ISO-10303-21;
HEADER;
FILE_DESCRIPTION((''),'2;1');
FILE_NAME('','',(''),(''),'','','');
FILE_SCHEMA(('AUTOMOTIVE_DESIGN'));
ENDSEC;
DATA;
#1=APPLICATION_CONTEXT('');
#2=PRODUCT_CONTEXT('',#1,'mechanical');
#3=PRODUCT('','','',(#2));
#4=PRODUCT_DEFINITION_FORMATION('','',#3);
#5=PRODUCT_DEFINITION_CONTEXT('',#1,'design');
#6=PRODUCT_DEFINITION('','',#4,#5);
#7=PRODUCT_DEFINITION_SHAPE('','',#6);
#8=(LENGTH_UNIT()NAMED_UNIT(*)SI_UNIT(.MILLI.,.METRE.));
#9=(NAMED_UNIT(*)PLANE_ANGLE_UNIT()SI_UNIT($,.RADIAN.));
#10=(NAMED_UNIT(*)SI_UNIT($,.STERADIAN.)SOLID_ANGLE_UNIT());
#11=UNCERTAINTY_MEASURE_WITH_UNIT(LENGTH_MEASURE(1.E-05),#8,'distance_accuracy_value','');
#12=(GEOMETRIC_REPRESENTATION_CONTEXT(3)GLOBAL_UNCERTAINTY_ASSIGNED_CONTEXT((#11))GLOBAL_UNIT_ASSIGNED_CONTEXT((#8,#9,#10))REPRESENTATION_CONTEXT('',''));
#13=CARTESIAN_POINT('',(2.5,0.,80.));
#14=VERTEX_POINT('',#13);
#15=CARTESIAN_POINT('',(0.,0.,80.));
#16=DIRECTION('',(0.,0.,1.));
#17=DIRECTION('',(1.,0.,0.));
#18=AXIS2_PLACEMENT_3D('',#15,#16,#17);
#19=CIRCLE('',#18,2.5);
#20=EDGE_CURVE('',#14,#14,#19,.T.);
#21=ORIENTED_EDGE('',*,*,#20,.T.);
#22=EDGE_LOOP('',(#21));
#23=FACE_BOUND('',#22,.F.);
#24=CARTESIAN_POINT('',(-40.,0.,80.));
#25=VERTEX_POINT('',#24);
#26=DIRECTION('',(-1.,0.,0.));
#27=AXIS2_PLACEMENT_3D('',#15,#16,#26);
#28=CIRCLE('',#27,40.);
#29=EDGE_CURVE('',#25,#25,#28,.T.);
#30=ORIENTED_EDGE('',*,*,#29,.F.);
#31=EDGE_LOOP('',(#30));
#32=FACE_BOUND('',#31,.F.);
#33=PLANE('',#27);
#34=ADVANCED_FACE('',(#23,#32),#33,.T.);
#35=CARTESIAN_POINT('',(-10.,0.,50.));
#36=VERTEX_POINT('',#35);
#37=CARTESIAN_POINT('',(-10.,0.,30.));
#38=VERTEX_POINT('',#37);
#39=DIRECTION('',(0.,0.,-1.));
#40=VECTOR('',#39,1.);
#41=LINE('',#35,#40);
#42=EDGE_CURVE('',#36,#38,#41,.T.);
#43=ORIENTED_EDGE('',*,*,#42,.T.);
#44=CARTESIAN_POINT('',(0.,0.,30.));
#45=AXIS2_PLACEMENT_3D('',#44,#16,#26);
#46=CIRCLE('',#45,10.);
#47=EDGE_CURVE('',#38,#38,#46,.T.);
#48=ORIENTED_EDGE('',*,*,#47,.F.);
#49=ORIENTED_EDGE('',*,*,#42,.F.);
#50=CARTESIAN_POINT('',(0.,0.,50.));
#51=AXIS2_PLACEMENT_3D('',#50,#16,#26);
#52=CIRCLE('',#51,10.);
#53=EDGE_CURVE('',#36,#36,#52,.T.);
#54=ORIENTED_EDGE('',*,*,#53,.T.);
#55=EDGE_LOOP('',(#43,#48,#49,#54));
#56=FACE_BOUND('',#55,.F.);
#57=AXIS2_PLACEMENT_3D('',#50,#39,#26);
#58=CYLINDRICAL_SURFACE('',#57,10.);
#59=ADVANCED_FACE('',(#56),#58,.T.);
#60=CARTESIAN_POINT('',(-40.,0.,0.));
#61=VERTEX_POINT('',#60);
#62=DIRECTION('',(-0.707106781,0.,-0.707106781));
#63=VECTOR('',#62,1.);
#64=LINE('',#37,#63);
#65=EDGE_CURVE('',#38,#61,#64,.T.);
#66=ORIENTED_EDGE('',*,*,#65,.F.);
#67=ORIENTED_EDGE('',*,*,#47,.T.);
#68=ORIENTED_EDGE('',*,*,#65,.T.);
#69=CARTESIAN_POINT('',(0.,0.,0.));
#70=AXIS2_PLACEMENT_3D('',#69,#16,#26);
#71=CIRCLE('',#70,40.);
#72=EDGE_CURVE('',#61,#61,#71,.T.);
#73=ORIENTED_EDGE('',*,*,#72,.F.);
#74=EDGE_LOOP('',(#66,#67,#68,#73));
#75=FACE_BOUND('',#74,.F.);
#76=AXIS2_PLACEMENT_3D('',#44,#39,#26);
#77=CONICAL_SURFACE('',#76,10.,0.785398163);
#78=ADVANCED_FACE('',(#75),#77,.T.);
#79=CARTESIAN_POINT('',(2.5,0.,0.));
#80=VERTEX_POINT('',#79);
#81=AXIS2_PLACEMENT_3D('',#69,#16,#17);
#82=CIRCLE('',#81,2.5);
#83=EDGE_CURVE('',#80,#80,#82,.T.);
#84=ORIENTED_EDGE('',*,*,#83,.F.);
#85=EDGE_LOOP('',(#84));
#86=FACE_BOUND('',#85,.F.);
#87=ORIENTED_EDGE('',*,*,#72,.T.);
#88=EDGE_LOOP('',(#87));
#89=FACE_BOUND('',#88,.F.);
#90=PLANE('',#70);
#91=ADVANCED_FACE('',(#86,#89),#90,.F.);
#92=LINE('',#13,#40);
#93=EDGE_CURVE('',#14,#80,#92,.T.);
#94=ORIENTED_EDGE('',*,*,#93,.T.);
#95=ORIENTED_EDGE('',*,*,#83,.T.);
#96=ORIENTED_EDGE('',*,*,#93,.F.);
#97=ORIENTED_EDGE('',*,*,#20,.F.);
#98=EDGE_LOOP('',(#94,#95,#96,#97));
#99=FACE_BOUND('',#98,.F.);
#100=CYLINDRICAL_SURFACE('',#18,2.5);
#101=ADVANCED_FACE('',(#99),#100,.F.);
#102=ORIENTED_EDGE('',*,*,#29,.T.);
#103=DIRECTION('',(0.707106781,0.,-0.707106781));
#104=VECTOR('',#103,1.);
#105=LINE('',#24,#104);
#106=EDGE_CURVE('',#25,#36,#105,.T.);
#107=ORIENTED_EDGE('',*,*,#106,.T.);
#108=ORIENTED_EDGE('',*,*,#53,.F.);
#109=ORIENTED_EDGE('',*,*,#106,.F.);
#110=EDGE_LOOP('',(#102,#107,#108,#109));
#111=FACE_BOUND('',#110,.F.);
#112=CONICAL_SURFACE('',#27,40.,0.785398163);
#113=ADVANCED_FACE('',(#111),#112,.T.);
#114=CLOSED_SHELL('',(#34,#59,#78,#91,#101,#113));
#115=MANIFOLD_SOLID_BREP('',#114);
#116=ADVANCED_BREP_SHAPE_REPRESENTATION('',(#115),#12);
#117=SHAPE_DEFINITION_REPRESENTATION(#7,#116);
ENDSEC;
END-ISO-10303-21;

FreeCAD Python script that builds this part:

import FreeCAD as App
import Part
import Sketcher
Q = App.Units.Quantity

doc = App.newDocument("Part")
body = doc.addObject("PartDesign::Body", "Body")

sketch1 = body.newObject("Sketcher::SketchObject", "Sketch")
sketch1.AttachmentSupport = (doc.getObject("XZ_Plane"), [""])
sketch1.MapMode = "FlatFace"
sketch1.addGeometry([
    Part.LineSegment(App.Vector(-40, 0, 0), App.Vector(0, 0, 0)),
    Part.LineSegment(App.Vector(0, 0, 0), App.Vector(0, 80, 0)),
    Part.LineSegment(App.Vector(0, 80, 0), App.Vector(-40, 80, 0)),
    Part.LineSegment(App.Vector(-40, 80, 0), App.Vector(-10, 50, 0)),
    Part.LineSegment(App.Vector(-10, 50, 0), App.Vector(-10, 30, 0)),
    Part.LineSegment(App.Vector(-10, 30, 0), App.Vector(-40, 0, 0)),
], False)
sketch1.addConstraint([
    Sketcher.Constraint("Coincident", 0, 2, 1, 1),
    Sketcher.Constraint("Coincident", 1, 2, 2, 1),
    Sketcher.Constraint("Coincident", 2, 2, 3, 1),
    Sketcher.Constraint("Coincident", 3, 2, 4, 1),
    Sketcher.Constraint("Coincident", 4, 2, 5, 1),
    Sketcher.Constraint("Coincident", 5, 2, 0, 1),
    Sketcher.Constraint("Horizontal", 0),
    Sketcher.Constraint("Vertical", 1),
    Sketcher.Constraint("Horizontal", 2),
    Sketcher.Constraint("Vertical", 4),
    Sketcher.Constraint("Coincident", 0, 2, -1, 1),
    Sketcher.Constraint("Perpendicular", 3, 5),
    Sketcher.Constraint("Vertical", 2, 2, 5, 2),
    Sketcher.Constraint("Equal", 3, 5),
    Sketcher.Constraint("DistanceX", 0, 1, 0, 2, Q("40 mm")),
    Sketcher.Constraint("DistanceY", 1, 1, 1, 2, Q("80 mm")),
    Sketcher.Constraint("DistanceY", 4, 2, 4, 1, Q("20 mm")),
])
revolution = body.newObject("PartDesign::Revolution", "Revolution")
revolution.Profile = sketch1
revolution.ReferenceAxis = (sketch1, ["V_Axis"])
revolution.Angle = 360

sketch2 = body.newObject("Sketcher::SketchObject", "Sketch001")
sketch2.AttachmentSupport = (doc.getObject("XY_Plane"), [""])
sketch2.MapMode = "FlatFace"
sketch2.AttachmentOffset = App.Placement(App.Vector(0, 0, 80), App.Rotation())
sketch2.addGeometry(Part.Circle(App.Vector(0, 0, 0), App.Vector(0, 0, 1), 2.5), False)
sketch2.addConstraint([
    Sketcher.Constraint("Coincident", 0, 3, -1, 1),
    Sketcher.Constraint("Diameter", 0, Q("5 mm")),
])
pocket1 = body.newObject("PartDesign::Pocket", "Pocket")
pocket1.Profile = sketch2
pocket1.Type = "ThroughAll"

doc.recompute()
